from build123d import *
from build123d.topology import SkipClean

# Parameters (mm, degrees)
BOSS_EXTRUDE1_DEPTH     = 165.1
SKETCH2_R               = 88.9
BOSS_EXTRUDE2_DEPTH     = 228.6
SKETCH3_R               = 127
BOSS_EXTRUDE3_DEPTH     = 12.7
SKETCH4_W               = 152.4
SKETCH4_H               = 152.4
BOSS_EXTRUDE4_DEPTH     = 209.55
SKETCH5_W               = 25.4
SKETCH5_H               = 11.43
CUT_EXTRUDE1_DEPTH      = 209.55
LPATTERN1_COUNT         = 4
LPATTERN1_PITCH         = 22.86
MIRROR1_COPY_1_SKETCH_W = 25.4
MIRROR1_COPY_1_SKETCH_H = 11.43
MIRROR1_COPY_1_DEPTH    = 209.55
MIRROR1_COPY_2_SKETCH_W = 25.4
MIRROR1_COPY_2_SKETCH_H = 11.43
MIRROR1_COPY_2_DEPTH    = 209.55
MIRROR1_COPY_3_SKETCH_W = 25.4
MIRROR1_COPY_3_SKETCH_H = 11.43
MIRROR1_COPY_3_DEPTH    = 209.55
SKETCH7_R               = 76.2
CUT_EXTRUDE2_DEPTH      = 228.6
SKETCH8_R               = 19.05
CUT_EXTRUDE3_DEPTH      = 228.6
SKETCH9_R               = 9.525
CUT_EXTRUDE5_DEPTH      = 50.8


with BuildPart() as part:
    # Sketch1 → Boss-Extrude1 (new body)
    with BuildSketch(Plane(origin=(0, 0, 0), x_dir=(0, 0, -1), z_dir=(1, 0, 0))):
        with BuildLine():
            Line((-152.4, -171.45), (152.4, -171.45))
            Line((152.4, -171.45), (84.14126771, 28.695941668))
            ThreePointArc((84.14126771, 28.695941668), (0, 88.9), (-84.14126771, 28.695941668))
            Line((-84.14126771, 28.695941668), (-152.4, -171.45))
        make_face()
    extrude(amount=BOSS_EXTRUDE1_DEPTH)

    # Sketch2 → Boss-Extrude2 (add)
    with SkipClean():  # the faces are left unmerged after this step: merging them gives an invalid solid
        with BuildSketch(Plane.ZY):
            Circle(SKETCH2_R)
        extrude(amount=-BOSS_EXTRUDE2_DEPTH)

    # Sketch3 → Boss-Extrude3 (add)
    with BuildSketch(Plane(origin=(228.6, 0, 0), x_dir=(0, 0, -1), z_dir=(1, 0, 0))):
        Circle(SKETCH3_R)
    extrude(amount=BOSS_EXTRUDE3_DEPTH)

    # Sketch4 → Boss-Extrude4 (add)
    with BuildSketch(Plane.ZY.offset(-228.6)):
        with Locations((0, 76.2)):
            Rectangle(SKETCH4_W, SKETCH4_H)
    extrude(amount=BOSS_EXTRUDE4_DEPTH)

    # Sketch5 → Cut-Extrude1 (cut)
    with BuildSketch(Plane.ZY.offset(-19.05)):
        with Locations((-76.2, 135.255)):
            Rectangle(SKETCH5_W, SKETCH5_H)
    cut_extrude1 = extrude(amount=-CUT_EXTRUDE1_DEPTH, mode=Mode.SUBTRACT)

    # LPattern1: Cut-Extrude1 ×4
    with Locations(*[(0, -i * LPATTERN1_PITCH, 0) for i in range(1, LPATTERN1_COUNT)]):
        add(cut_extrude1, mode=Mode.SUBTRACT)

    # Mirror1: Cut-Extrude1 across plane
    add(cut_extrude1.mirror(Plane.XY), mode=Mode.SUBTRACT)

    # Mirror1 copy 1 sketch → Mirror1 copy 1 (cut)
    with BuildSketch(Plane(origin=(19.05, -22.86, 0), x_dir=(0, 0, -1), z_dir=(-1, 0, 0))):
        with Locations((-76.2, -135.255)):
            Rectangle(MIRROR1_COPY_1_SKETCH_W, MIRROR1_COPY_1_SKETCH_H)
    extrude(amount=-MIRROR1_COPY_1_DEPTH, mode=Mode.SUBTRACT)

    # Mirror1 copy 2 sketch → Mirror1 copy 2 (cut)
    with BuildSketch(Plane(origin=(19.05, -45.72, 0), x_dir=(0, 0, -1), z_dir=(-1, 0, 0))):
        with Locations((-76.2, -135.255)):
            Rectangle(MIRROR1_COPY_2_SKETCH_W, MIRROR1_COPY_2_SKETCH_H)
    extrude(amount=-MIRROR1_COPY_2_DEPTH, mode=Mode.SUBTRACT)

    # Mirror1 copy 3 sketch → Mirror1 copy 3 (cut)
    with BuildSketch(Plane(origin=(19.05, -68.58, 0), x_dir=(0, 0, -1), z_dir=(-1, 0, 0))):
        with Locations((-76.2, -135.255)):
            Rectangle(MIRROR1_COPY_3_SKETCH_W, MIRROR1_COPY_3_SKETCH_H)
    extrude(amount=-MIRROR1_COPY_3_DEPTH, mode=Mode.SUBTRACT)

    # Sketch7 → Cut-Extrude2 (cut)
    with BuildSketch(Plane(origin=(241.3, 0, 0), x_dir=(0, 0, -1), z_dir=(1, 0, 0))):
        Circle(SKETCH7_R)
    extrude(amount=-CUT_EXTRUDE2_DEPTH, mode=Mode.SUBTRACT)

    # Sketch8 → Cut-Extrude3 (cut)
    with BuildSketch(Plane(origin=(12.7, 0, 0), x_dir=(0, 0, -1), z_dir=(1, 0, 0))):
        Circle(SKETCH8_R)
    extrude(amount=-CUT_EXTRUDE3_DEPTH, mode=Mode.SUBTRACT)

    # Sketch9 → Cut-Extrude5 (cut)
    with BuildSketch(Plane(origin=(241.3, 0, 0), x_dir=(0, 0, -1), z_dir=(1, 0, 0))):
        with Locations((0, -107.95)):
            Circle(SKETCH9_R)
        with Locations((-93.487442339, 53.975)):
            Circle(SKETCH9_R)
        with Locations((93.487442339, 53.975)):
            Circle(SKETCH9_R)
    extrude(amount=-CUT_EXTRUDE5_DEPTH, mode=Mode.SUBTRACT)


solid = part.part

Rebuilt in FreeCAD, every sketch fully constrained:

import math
import FreeCAD as App
import Part
import Sketcher

V = App.Vector
Q = App.Units.Quantity

doc = App.newDocument("Part")
body = doc.addObject("PartDesign::Body", "Body")

sketch1 = body.newObject("Sketcher::SketchObject", "Sketch")
sketch1.AttachmentSupport = (doc.getObject("YZ_Plane"), [""])
sketch1.MapMode = "FlatFace"
sketch1.addGeometry(Part.LineSegment(V(-171, 152, 0), V(-171, -152, 0)), False)
sketch1.addGeometry(Part.LineSegment(V(-171, -152, 0), V(29, -84, 0)), False)
sketch1.addGeometry(Part.ArcOfCircle(Part.Circle(V(0, 0, 0), V(0, 0, 1), 89), math.radians(-71), math.radians(71)), False)
sketch1.addGeometry(Part.LineSegment(V(29, 84, 0), V(-171, 152, 0)), False)
sketch1.addConstraint(Sketcher.Constraint("Coincident", 0, 2, 1, 1))
sketch1.addConstraint(Sketcher.Constraint("Tangent", 1, 2, 2, 1))
sketch1.addConstraint(Sketcher.Constraint("Tangent", 2, 2, 3, 1))
sketch1.addConstraint(Sketcher.Constraint("Coincident", 3, 2, 0, 1))
sketch1.addConstraint(Sketcher.Constraint("Vertical", 0))
sketch1.addConstraint(Sketcher.Constraint("Coincident", 2, 3, -1, 1))
sketch1.addConstraint(Sketcher.Constraint("Vertical", 1, 2, 2, 2))
sketch1.addConstraint(Sketcher.Constraint("Radius", 2, Q("3.5 in")))
sketch1.addConstraint(Sketcher.Constraint("DistanceY", 0, 2, 0, 1, Q("12 in")))
sketch1.addConstraint(Sketcher.Constraint("DistanceX", 0, 2, -1, 1, Q("6.75 in")))
pad1 = body.newObject("PartDesign::Pad", "Pad")
pad1.Profile = sketch1
pad1.Length = Q("6.5 in")

sketch2 = body.newObject("Sketcher::SketchObject", "Sketch001")
sketch2.AttachmentSupport = (doc.getObject("YZ_Plane"), [""])
sketch2.MapMode = "FlatFace"
sketch2.addGeometry(Part.Circle(V(0, 0, 0), V(0, 0, 1), 89), False)
sketch2.addConstraint(Sketcher.Constraint("Coincident", 0, 3, -1, 1))
sketch2.addConstraint(Sketcher.Constraint("Diameter", 0, Q("7 in")))
pad2 = body.newObject("PartDesign::Pad", "Pad001")
pad2.Profile = sketch2
pad2.Length = Q("9 in")

sketch3 = body.newObject("Sketcher::SketchObject", "Sketch002")
sketch3.AttachmentSupport = (doc.getObject("YZ_Plane"), [""])
sketch3.MapMode = "FlatFace"
sketch3.AttachmentOffset = App.Placement(V(0, 0, 9 * 25.4), App.Rotation())
sketch3.addGeometry(Part.Circle(V(0, 0, 0), V(0, 0, 1), 127), False)
sketch3.addConstraint(Sketcher.Constraint("Coincident", 0, 3, -1, 1))
sketch3.addConstraint(Sketcher.Constraint("Diameter", 0, Q("10 in")))
pad3 = body.newObject("PartDesign::Pad", "Pad002")
pad3.Profile = sketch3
pad3.Length = Q("0.5 in")

sketch4 = body.newObject("Sketcher::SketchObject", "Sketch003")
sketch4.AttachmentSupport = (doc.getObject("YZ_Plane"), [""])
sketch4.MapMode = "FlatFace"
sketch4.AttachmentOffset = App.Placement(V(0, 0, 9 * 25.4), App.Rotation())
sketch4.addGeometry(Part.LineSegment(V(152, -76, 0), V(0, -76, 0)), False)
sketch4.addGeometry(Part.LineSegment(V(0, -76, 0), V(0, 76, 0)), False)
sketch4.addGeometry(Part.LineSegment(V(0, 76, 0), V(152, 76, 0)), False)
sketch4.addGeometry(Part.LineSegment(V(152, 76, 0), V(152, -76, 0)), False)
sketch4.addConstraint(Sketcher.Constraint("Coincident", 0, 2, 1, 1))
sketch4.addConstraint(Sketcher.Constraint("Coincident", 1, 2, 2, 1))
sketch4.addConstraint(Sketcher.Constraint("Coincident", 2, 2, 3, 1))
sketch4.addConstraint(Sketcher.Constraint("Coincident", 3, 2, 0, 1))
sketch4.addConstraint(Sketcher.Constraint("Horizontal", 0))
sketch4.addConstraint(Sketcher.Constraint("Vertical", 1))
sketch4.addConstraint(Sketcher.Constraint("Horizontal", 2))
sketch4.addConstraint(Sketcher.Constraint("Vertical", 3))
sketch4.addConstraint(Sketcher.Constraint("Symmetric", 0, 2, 1, 2, -1, 1))
sketch4.addConstraint(Sketcher.Constraint("Equal", 2, 1))
sketch4.addConstraint(Sketcher.Constraint("DistanceX", 0, 2, 0, 1, Q("6 in")))
pad4 = body.newObject("PartDesign::Pad", "Pad003")
pad4.Profile = sketch4
pad4.Length = Q("8.25 in")
pad4.Reversed = True

sketch5 = body.newObject("Sketcher::SketchObject", "Sketch004")
sketch5.AttachmentSupport = (doc.getObject("YZ_Plane"), [""])
sketch5.MapMode = "FlatFace"
sketch5.AttachmentOffset = App.Placement(V(0, 0, 0.75 * 25.4), App.Rotation())
sketch5.addGeometry(Part.LineSegment(V(141, -89, 0), V(130, -89, 0)), False)
sketch5.addGeometry(Part.LineSegment(V(130, -89, 0), V(130, -64, 0)), False)
sketch5.addGeometry(Part.LineSegment(V(130, -64, 0), V(141, -64, 0)), False)
sketch5.addGeometry(Part.LineSegment(V(141, -64, 0), V(141, -89, 0)), False)
sketch5.addConstraint(Sketcher.Constraint("Coincident", 0, 2, 1, 1))
sketch5.addConstraint(Sketcher.Constraint("Coincident", 1, 2, 2, 1))
sketch5.addConstraint(Sketcher.Constraint("Coincident", 2, 2, 3, 1))
sketch5.addConstraint(Sketcher.Constraint("Coincident", 3, 2, 0, 1))
sketch5.addConstraint(Sketcher.Constraint("Horizontal", 0))
sketch5.addConstraint(Sketcher.Constraint("Vertical", 1))
sketch5.addConstraint(Sketcher.Constraint("Horizontal", 2))
sketch5.addConstraint(Sketcher.Constraint("Vertical", 3))
sketch5.addConstraint(Sketcher.Constraint("DistanceY", 1, 1, 1, 2, Q("1 in")))
sketch5.addConstraint(Sketcher.Constraint("DistanceX", 0, 2, 0, 1, Q("0.45 in")))
sketch5.addConstraint(Sketcher.Constraint("DistanceX", -1, 1, 0, 2, Q("5.1 in")))
sketch5.addConstraint(Sketcher.Constraint("DistanceY", 0, 2, -1, 1, Q("3.5 in")))
pocket1 = body.newObject("PartDesign::Pocket", "Pocket")
pocket1.Profile = sketch5
pocket1.Length = Q("8.25 in")
pocket1.Reversed = True
doc.recompute()

linearpattern = body.newObject("PartDesign::LinearPattern", "LinearPattern")
linearpattern.Originals = [pocket1]
linearpattern.Direction = (doc.getObject("Y_Axis"), [""])
linearpattern.Mode = "offset"
linearpattern.Offset = Q("0.9 in")
linearpattern.Occurrences = 4
linearpattern.Reversed = True
body.Tip = linearpattern
doc.recompute()

mirrored = body.newObject("PartDesign::Mirrored", "Mirrored")
mirrored.Originals = [pocket1]
mirrored.MirrorPlane = (doc.getObject("XY_Plane"), [""])
body.Tip = mirrored

sketch6 = body.newObject("Sketcher::SketchObject", "Sketch005")
sketch6.AttachmentSupport = (doc.getObject("YZ_Plane"), [""])
sketch6.MapMode = "FlatFace"
sketch6.AttachmentOffset = App.Placement(V(0, 0, 0.75 * 25.4), App.Rotation())
sketch6.addGeometry(Part.LineSegment(V(107, 89, 0), V(118, 89, 0)), False)
sketch6.addGeometry(Part.LineSegment(V(118, 89, 0), V(118, 64, 0)), False)
sketch6.addGeometry(Part.LineSegment(V(118, 64, 0), V(107, 64, 0)), False)
sketch6.addGeometry(Part.LineSegment(V(107, 64, 0), V(107, 89, 0)), False)
sketch6.addConstraint(Sketcher.Constraint("Coincident", 0, 2, 1, 1))
sketch6.addConstraint(Sketcher.Constraint("Coincident", 1, 2, 2, 1))
sketch6.addConstraint(Sketcher.Constraint("Coincident", 2, 2, 3, 1))
sketch6.addConstraint(Sketcher.Constraint("Coincident", 3, 2, 0, 1))
sketch6.addConstraint(Sketcher.Constraint("Horizontal", 0))
sketch6.addConstraint(Sketcher.Constraint("Vertical", 1))
sketch6.addConstraint(Sketcher.Constraint("Horizontal", 2))
sketch6.addConstraint(Sketcher.Constraint("Vertical", 3))
sketch6.addConstraint(Sketcher.Constraint("DistanceY", 1, 2, 1, 1, Q("1 in")))
sketch6.addConstraint(Sketcher.Constraint("DistanceX", 0, 1, 0, 2, Q("0.45 in")))
sketch6.addConstraint(Sketcher.Constraint("DistanceY", -1, 1, 0, 2, Q("3.5 in")))
sketch6.addConstraint(Sketcher.Constraint("DistanceX", -1, 1, 2, 2, Q("4.2 in")))
pocket2 = body.newObject("PartDesign::Pocket", "Pocket001")
pocket2.Profile = sketch6
pocket2.Length = Q("8.25 in")
pocket2.Reversed = True

sketch7 = body.newObject("Sketcher::SketchObject", "Sketch006")
sketch7.AttachmentSupport = (doc.getObject("YZ_Plane"), [""])
sketch7.MapMode = "FlatFace"
sketch7.AttachmentOffset = App.Placement(V(0, 0, 0.75 * 25.4), App.Rotation())
sketch7.addGeometry(Part.LineSegment(V(84, 89, 0), V(95, 89, 0)), False)
sketch7.addGeometry(Part.LineSegment(V(95, 89, 0), V(95, 64, 0)), False)
sketch7.addGeometry(Part.LineSegment(V(95, 64, 0), V(84, 64, 0)), False)
sketch7.addGeometry(Part.LineSegment(V(84, 64, 0), V(84, 89, 0)), False)
sketch7.addConstraint(Sketcher.Constraint("Coincident", 0, 2, 1, 1))
sketch7.addConstraint(Sketcher.Constraint("Coincident", 1, 2, 2, 1))
sketch7.addConstraint(Sketcher.Constraint("Coincident", 2, 2, 3, 1))
sketch7.addConstraint(Sketcher.Constraint("Coincident", 3, 2, 0, 1))
sketch7.addConstraint(Sketcher.Constraint("Horizontal", 0))
sketch7.addConstraint(Sketcher.Constraint("Vertical", 1))
sketch7.addConstraint(Sketcher.Constraint("Horizontal", 2))
sketch7.addConstraint(Sketcher.Constraint("Vertical", 3))
sketch7.addConstraint(Sketcher.Constraint("DistanceY", 1, 2, 1, 1, Q("1 in")))
sketch7.addConstraint(Sketcher.Constraint("DistanceX", 0, 1, 0, 2, Q("0.45 in")))
sketch7.addConstraint(Sketcher.Constraint("DistanceY", -1, 1, 0, 2, Q("3.5 in")))
sketch7.addConstraint(Sketcher.Constraint("DistanceX", -1, 1, 2, 2, Q("3.3 in")))
pocket3 = body.newObject("PartDesign::Pocket", "Pocket002")
pocket3.Profile = sketch7
pocket3.Length = Q("8.25 in")
pocket3.Reversed = True

sketch8 = body.newObject("Sketcher::SketchObject", "Sketch007")
sketch8.AttachmentSupport = (doc.getObject("YZ_Plane"), [""])
sketch8.MapMode = "FlatFace"
sketch8.AttachmentOffset = App.Placement(V(0, 0, 0.75 * 25.4), App.Rotation())
sketch8.addGeometry(Part.LineSegment(V(61, 89, 0), V(72, 89, 0)), False)
sketch8.addGeometry(Part.LineSegment(V(72, 89, 0), V(72, 64, 0)), False)
sketch8.addGeometry(Part.LineSegment(V(72, 64, 0), V(61, 64, 0)), False)
sketch8.addGeometry(Part.LineSegment(V(61, 64, 0), V(61, 89, 0)), False)
sketch8.addConstraint(Sketcher.Constraint("Coincident", 0, 2, 1, 1))
sketch8.addConstraint(Sketcher.Constraint("Coincident", 1, 2, 2, 1))
sketch8.addConstraint(Sketcher.Constraint("Coincident", 2, 2, 3, 1))
sketch8.addConstraint(Sketcher.Constraint("Coincident", 3, 2, 0, 1))
sketch8.addConstraint(Sketcher.Constraint("Horizontal", 0))
sketch8.addConstraint(Sketcher.Constraint("Vertical", 1))
sketch8.addConstraint(Sketcher.Constraint("Horizontal", 2))
sketch8.addConstraint(Sketcher.Constraint("Vertical", 3))
sketch8.addConstraint(Sketcher.Constraint("DistanceY", 1, 2, 1, 1, Q("1 in")))
sketch8.addConstraint(Sketcher.Constraint("DistanceX", 0, 1, 0, 2, Q("0.45 in")))
sketch8.addConstraint(Sketcher.Constraint("DistanceY", -1, 1, 0, 2, Q("3.5 in")))
sketch8.addConstraint(Sketcher.Constraint("DistanceX", -1, 1, 2, 2, Q("2.4 in")))
pocket4 = body.newObject("PartDesign::Pocket", "Pocket003")
pocket4.Profile = sketch8
pocket4.Length = Q("8.25 in")
pocket4.Reversed = True

sketch9 = body.newObject("Sketcher::SketchObject", "Sketch008")
sketch9.AttachmentSupport = (doc.getObject("YZ_Plane"), [""])
sketch9.MapMode = "FlatFace"
sketch9.AttachmentOffset = App.Placement(V(0, 0, 9.5 * 25.4), App.Rotation())
sketch9.addGeometry(Part.Circle(V(0, 0, 0), V(0, 0, 1), 76), False)
sketch9.addConstraint(Sketcher.Constraint("Coincident", 0, 3, -1, 1))
sketch9.addConstraint(Sketcher.Constraint("Diameter", 0, Q("6 in")))
pocket5 = body.newObject("PartDesign::Pocket", "Pocket004")
pocket5.Profile = sketch9
pocket5.Length = Q("9 in")

sketch10 = body.newObject("Sketcher::SketchObject", "Sketch009")
sketch10.AttachmentSupport = (doc.getObject("YZ_Plane"), [""])
sketch10.MapMode = "FlatFace"
sketch10.AttachmentOffset = App.Placement(V(0, 0, 0.5 * 25.4), App.Rotation())
sketch10.addGeometry(Part.Circle(V(0, 0, 0), V(0, 0, 1), 19), False)
sketch10.addConstraint(Sketcher.Constraint("Coincident", 0, 3, -1, 1))
sketch10.addConstraint(Sketcher.Constraint("Diameter", 0, Q("1.5 in")))
pocket6 = body.newObject("PartDesign::Pocket", "Pocket005")
pocket6.Profile = sketch10
pocket6.Length = Q("9 in")

sketch11 = body.newObject("Sketcher::SketchObject", "Sketch010")
sketch11.AttachmentSupport = (doc.getObject("YZ_Plane"), [""])
sketch11.MapMode = "FlatFace"
sketch11.AttachmentOffset = App.Placement(V(0, 0, 9.5 * 25.4), App.Rotation())
sketch11.addGeometry(Part.Circle(V(-108, 0, 0), V(0, 0, 1), 10), False)
sketch11.addGeometry(Part.Circle(V(54, 93, 0), V(0, 0, 1), 10), False)
sketch11.addGeometry(Part.Circle(V(54, -93, 0), V(0, 0, 1), 10), False)
sketch11.addConstraint(Sketcher.Constraint("Equal", 0, 1))
sketch11.addConstraint(Sketcher.Constraint("Equal", 1, 2))
sketch11.addConstraint(Sketcher.Constraint("Symmetric", 1, 3, 2, 3, -1))
sketch11.addConstraint(Sketcher.Constraint("PointOnObject", 0, 3, -1))
sketch11.addConstraint(Sketcher.Constraint("Diameter", 0, Q("0.75 in")))
sketch11.addConstraint(Sketcher.Constraint("DistanceX", 0, 3, -1, 1, Q("4.25 in")))
sketch11.addConstraint(Sketcher.Constraint("DistanceX", -1, 1, 1, 3, Q("2.125 in")))
sketch11.addConstraint(Sketcher.Constraint("DistanceY", -1, 1, 1, 3, 93.487442))
pocket7 = body.newObject("PartDesign::Pocket", "Pocket006")
pocket7.Profile = sketch11
pocket7.Length = Q("2 in")

doc.recompute()
